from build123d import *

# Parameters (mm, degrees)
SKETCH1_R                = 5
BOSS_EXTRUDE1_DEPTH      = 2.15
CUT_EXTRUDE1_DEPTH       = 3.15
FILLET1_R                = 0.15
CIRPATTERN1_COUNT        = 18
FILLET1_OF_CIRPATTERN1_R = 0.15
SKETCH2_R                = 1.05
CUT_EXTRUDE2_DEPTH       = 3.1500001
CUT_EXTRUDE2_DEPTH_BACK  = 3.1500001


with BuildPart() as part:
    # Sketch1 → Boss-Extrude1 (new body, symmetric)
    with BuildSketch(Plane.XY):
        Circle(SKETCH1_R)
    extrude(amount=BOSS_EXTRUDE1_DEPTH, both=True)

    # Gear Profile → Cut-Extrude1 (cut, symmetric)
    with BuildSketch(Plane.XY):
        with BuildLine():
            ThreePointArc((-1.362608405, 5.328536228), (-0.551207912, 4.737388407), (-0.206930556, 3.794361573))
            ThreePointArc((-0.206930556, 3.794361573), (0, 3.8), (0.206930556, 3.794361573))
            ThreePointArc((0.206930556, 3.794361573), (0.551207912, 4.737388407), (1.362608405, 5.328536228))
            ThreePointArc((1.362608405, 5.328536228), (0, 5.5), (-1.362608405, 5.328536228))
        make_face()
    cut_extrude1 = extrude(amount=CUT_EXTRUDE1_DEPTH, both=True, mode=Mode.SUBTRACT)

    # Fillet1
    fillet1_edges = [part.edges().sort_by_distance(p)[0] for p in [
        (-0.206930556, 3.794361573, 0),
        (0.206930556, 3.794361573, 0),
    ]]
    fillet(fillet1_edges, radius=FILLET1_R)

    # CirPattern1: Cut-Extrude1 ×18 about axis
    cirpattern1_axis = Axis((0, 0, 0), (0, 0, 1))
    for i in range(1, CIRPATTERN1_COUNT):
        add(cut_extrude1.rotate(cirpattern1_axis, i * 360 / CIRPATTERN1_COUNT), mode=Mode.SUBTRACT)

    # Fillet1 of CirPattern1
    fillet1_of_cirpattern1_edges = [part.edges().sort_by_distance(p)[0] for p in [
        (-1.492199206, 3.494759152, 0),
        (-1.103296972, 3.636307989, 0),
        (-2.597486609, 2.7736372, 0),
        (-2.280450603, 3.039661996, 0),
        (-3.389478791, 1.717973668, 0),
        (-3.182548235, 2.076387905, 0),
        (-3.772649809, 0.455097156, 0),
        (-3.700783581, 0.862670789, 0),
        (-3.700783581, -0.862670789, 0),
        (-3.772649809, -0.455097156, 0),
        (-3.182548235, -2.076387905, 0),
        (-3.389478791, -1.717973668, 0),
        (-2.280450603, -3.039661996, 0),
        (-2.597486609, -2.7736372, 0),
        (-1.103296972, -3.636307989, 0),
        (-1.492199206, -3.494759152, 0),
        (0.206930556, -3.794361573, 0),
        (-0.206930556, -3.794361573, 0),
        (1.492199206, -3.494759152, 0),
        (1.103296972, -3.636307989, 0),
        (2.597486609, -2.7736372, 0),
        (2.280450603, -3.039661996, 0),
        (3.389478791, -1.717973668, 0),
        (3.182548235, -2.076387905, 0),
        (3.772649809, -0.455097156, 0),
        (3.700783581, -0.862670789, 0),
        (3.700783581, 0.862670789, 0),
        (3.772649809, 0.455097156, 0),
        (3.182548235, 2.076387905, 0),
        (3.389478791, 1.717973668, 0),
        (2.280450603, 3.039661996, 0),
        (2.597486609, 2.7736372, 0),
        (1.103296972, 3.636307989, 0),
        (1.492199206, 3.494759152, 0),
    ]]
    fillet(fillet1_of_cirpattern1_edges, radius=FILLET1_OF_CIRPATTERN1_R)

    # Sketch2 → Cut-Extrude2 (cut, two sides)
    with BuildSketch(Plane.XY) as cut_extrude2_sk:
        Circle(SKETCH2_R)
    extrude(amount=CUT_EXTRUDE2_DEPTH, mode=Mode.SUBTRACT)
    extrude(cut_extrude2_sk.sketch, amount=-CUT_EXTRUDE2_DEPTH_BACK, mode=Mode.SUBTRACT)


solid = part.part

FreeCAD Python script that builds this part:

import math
import FreeCAD as App
import Part
import Sketcher
Q = App.Units.Quantity


def edges_at(feature, points):
    """Names of the edges that pass closest to the given points."""
    edges = feature.Shape.Edges
    near = lambda p: min(range(len(edges)), key=lambda i: edges[i].distToShape(Part.Vertex(*p))[0])
    return sorted({f"Edge{near(p) + 1}" for p in points})

doc = App.newDocument("Part")
body = doc.addObject("PartDesign::Body", "Body")

# Sketch on XY plane
sketch1 = body.newObject("Sketcher::SketchObject", "Sketch")
sketch1.AttachmentSupport = (doc.getObject("XY_Plane"), [""])
sketch1.MapMode = "FlatFace"
sketch1.addGeometry(Part.Circle(App.Vector(0, 0, 0), App.Vector(0, 0, 1), 5), False)
sketch1.addConstraint([
    Sketcher.Constraint("Coincident", 0, 3, -1, 1),
    Sketcher.Constraint("Diameter", 0, Q("10 mm")),
])
pad1 = body.newObject("PartDesign::Pad", "Pad")
pad1.Profile = sketch1
pad1.Length = 4.3
pad1.Midplane = True

# Sketch on XY plane
sketch2 = body.newObject("Sketcher::SketchObject", "Sketch001")
sketch2.AttachmentSupport = (doc.getObject("XY_Plane"), [""])
sketch2.MapMode = "FlatFace"
sketch2.addGeometry([
    Part.ArcOfCircle(Part.Circle(App.Vector(-1.93, 3.7, 0), App.Vector(0, 0, 1), 1.72), math.radians(3), math.radians(71)),
    Part.ArcOfCircle(Part.Circle(App.Vector(0, 0, 0), App.Vector(0, 0, 1), 3.8), math.radians(86.88), math.radians(93.12)),
    Part.ArcOfCircle(Part.Circle(App.Vector(1.93, 3.7, 0), App.Vector(0, 0, 1), 1.72), math.radians(109), math.radians(177)),
    Part.ArcOfCircle(Part.Circle(App.Vector(0, 0, 0), App.Vector(0, 0, 1), 5.5), math.radians(76), math.radians(104)),
], False)
sketch2.addConstraint([
    Sketcher.Constraint("Coincident", 0, 1, 1, 2),
    Sketcher.Constraint("Coincident", 1, 1, 2, 2),
    Sketcher.Constraint("Coincident", 2, 1, 3, 1),
    Sketcher.Constraint("Coincident", 3, 2, 0, 2),
    Sketcher.Constraint("Coincident", 1, 3, -1, 1),
    Sketcher.Constraint("Coincident", 3, 3, -1, 1),
    Sketcher.Constraint("Equal", 0, 2),
    Sketcher.Constraint("Symmetric", 0, 3, 2, 3, -2),
    Sketcher.Constraint("Radius", 1, Q("3.8 mm")),
    Sketcher.Constraint("Radius", 3, Q("5.5 mm")),
    Sketcher.Constraint("Radius", 0, Q("1.723289 mm")),
    Sketcher.Constraint("DistanceY", -1, 1, 0, 3, Q("3.700519 mm")),
    Sketcher.Constraint("DistanceX", 0, 1, -1, 1, Q("0.206931 mm")),
])
pocket1 = body.newObject("PartDesign::Pocket", "Pocket")
pocket1.Profile = sketch2
pocket1.Length = 6.3
pocket1.Midplane = True
doc.recompute()

fillet = body.newObject("PartDesign::Fillet", "Fillet")
fillet.Base = (pocket1, edges_at(pocket1, [(-0.207, 3.794, 0), (0.207, 3.794, 0)]))
fillet.Radius = 0.15
doc.recompute()

polarpattern = body.newObject("PartDesign::PolarPattern", "PolarPattern")
polarpattern.Originals = [pocket1]
polarpattern.Axis = (doc.getObject("Z_Axis"), [""])
polarpattern.Angle = 360
polarpattern.Occurrences = 18
body.Tip = polarpattern
doc.recompute()

fillet2 = body.newObject("PartDesign::Fillet", "Fillet001")
fillet2.Base = (polarpattern, edges_at(polarpattern, [
    (-1.492, 3.495, 0),
    (-1.103, 3.636, 0),
    (-2.597, 2.774, 0),
    (-2.28, 3.04, 0),
    (-3.389, 1.718, 0),
    (-3.183, 2.076, 0),
    (-3.773, 0.455, 0),
    (-3.701, 0.863, 0),
    (-3.701, -0.863, 0),
    (-3.773, -0.455, 0),
    (-3.183, -2.076, 0),
    (-3.389, -1.718, 0),
    (-2.28, -3.04, 0),
    (-2.597, -2.774, 0),
    (-1.103, -3.636, 0),
    (-1.492, -3.495, 0),
    (0.207, -3.794, 0),
    (-0.207, -3.794, 0),
    (1.492, -3.495, 0),
    (1.103, -3.636, 0),
    (2.597, -2.774, 0),
    (2.28, -3.04, 0),
    (3.389, -1.718, 0),
    (3.183, -2.076, 0),
    (3.773, -0.455, 0),
    (3.701, -0.863, 0),
    (3.701, 0.863, 0),
    (3.773, 0.455, 0),
    (3.183, 2.076, 0),
    (3.389, 1.718, 0),
    (2.28, 3.04, 0),
    (2.597, 2.774, 0),
    (1.103, 3.636, 0),
    (1.492, 3.495, 0),
]))
fillet2.Radius = 0.15

# Sketch on XY plane
sketch3 = body.newObject("Sketcher::SketchObject", "Sketch002")
sketch3.AttachmentSupport = (doc.getObject("XY_Plane"), [""])
sketch3.MapMode = "FlatFace"
sketch3.addGeometry(Part.Circle(App.Vector(0, 0, 0), App.Vector(0, 0, 1), 1.1), False)
sketch3.addConstraint([
    Sketcher.Constraint("Coincident", 0, 3, -1, 1),
    Sketcher.Constraint("Diameter", 0, Q("2.1 mm")),
])
pocket2 = body.newObject("PartDesign::Pocket", "Pocket001")
pocket2.Profile = sketch3
pocket2.Type = "ThroughAll"
pocket2.Midplane = True

doc.recompute()
